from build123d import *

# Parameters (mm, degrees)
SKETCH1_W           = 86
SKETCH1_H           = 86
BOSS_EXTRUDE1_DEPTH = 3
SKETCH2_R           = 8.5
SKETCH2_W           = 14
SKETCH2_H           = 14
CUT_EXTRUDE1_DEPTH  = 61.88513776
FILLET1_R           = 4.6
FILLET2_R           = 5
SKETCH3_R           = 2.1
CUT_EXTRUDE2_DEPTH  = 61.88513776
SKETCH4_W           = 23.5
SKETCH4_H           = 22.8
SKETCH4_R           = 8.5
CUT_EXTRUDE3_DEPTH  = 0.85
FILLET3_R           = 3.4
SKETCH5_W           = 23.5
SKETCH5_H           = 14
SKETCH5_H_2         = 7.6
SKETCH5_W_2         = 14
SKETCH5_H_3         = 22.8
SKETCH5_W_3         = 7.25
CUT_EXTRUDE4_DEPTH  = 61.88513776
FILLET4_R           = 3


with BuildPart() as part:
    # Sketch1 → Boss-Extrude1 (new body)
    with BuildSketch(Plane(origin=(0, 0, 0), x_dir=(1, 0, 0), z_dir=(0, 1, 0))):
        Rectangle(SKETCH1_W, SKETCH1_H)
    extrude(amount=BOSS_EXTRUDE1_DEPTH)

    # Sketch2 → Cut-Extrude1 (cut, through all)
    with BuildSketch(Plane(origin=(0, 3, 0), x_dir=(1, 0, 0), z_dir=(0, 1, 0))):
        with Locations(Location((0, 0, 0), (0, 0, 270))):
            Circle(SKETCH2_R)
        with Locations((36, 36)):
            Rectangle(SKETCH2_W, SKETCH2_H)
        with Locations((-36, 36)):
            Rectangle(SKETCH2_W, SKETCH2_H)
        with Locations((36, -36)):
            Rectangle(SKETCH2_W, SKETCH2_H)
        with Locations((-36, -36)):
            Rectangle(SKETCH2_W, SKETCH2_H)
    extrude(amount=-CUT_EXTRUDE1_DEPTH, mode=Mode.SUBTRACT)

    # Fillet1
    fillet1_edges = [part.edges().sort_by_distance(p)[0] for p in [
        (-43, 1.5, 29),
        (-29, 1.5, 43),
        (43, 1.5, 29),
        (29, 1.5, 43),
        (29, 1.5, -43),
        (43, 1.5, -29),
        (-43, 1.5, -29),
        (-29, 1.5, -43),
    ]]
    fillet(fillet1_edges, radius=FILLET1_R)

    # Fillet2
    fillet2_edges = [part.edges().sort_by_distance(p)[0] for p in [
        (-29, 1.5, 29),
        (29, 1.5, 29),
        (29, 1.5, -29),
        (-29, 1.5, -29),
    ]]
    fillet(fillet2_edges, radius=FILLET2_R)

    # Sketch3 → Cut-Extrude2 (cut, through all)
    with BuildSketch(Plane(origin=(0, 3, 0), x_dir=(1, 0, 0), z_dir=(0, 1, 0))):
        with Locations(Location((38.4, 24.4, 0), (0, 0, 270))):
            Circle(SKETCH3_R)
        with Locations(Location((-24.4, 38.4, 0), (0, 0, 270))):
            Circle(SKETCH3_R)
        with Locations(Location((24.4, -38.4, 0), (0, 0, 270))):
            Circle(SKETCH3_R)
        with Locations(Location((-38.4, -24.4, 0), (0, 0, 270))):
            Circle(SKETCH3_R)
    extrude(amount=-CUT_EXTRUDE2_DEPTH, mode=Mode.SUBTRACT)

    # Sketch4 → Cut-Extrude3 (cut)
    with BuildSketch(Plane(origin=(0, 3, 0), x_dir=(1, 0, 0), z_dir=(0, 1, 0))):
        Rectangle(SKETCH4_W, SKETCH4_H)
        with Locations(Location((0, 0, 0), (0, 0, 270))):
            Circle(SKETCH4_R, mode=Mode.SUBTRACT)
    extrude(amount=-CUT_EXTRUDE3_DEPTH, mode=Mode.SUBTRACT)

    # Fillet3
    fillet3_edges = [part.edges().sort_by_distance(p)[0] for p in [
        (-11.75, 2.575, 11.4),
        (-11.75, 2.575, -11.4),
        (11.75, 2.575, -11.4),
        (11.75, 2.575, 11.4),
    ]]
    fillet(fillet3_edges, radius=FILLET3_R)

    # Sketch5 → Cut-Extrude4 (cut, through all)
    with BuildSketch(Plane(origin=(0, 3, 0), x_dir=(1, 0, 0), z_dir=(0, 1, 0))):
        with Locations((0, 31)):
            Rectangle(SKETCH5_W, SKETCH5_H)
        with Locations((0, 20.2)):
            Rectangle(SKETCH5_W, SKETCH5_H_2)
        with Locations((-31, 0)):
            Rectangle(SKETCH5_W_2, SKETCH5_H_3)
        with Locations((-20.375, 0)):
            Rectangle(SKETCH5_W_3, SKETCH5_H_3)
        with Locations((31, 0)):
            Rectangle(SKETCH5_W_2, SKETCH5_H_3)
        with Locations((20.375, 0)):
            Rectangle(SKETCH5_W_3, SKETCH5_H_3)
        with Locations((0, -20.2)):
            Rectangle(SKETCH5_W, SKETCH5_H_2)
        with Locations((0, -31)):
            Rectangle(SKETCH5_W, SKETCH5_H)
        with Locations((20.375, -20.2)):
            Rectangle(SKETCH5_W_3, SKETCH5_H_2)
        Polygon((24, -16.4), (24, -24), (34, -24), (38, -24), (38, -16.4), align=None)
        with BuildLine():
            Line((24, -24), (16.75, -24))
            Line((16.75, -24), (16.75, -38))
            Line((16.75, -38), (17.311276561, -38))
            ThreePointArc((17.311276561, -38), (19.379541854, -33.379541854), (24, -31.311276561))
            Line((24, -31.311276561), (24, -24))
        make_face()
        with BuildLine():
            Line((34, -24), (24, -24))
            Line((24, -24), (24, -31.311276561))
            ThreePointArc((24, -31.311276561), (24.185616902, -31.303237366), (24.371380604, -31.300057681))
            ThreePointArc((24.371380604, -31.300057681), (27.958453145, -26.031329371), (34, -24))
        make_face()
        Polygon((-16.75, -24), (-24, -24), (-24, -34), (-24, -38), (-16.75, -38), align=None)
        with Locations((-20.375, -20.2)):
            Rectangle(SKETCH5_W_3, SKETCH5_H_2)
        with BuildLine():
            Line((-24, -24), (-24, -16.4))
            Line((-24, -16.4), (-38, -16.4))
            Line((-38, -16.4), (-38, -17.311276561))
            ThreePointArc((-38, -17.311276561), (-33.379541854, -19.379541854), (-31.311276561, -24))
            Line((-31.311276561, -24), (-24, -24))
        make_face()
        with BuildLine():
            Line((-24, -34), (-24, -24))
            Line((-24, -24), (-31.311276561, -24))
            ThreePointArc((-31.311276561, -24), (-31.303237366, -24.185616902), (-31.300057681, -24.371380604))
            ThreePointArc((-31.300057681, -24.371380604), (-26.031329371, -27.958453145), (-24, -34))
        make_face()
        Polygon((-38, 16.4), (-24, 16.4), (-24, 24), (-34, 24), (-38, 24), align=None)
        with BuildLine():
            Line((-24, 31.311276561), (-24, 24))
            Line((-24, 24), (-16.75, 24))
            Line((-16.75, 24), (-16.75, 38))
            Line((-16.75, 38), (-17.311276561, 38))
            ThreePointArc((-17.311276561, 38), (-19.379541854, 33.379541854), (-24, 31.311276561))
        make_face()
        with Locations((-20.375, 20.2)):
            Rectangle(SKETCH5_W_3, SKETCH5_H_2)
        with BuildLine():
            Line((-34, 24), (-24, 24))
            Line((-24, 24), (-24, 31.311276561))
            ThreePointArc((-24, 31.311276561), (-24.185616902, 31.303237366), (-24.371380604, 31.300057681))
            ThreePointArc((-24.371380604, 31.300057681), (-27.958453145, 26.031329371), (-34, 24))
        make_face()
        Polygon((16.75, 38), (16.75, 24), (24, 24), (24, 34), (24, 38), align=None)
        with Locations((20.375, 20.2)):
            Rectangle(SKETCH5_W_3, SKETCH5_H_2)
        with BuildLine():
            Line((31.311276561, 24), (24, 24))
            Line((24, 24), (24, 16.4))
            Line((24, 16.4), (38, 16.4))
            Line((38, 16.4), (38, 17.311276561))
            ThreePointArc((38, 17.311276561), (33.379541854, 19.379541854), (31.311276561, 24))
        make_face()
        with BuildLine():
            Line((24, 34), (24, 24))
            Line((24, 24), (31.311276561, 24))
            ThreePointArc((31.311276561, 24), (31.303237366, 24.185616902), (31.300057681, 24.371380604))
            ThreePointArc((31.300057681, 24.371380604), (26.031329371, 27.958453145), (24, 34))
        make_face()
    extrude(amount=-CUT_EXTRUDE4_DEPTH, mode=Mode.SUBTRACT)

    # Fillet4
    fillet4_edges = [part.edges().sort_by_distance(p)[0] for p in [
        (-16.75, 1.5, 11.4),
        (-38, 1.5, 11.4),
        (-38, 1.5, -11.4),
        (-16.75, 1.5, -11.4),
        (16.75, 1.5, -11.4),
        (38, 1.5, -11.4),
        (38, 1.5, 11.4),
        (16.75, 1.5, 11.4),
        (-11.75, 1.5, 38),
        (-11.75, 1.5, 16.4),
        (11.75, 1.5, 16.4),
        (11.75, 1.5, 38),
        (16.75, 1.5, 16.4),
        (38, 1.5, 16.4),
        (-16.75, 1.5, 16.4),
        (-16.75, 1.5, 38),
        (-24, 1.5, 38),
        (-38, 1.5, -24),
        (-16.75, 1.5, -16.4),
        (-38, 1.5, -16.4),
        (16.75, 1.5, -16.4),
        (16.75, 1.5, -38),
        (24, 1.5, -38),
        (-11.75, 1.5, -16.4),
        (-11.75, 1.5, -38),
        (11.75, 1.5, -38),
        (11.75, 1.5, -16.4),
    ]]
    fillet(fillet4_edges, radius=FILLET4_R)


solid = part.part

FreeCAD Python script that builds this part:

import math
import FreeCAD as App
import Part
import Sketcher

V = App.Vector


def edges_at(feature, points):
    """Names of the edges that pass closest to the given points."""
    edges = feature.Shape.Edges
    near = lambda p: min(range(len(edges)), key=lambda i: edges[i].distToShape(Part.Vertex(*p))[0])
    return sorted({f"Edge{near(p) + 1}" for p in points})


def add_polygon(sketch, points):
    """Adds a closed chain of lines whose ends are joined by coincident constraints."""
    first, n = sketch.GeometryCount, len(points)
    for a, b in zip(points, points[1:] + points[:1]):
        sketch.addGeometry(Part.LineSegment(App.Vector(*a, 0), App.Vector(*b, 0)), False)
    for i in range(n):
        sketch.addConstraint(Sketcher.Constraint("Coincident", first + i, 2, first + (i + 1) % n, 1))

doc = App.newDocument("Part")
params = doc.addObject("Spreadsheet::Sheet", "Params")
for row, (alias, value) in enumerate([
    ("sketch1_width", "86 mm"),
    ("pad1_length", "3 mm"),
    ("sketch2_diameter", "17 mm"),
    ("sketch2_width", "14 mm"),
    ("fillet_radius", "4.6 mm"),
    ("fillet2_radius", "5 mm"),
    ("sketch3_diameter", "4.2 mm"),
    ("sketch4_diameter", "17 mm"),
    ("sketch4_width", "23.5 mm"),
    ("sketch4_height", "22.8 mm"),
    ("pocket3_length", "0.85 mm"),
    ("fillet3_radius", "3.4 mm"),
    ("sketch5_radius", "10 mm"),
    ("sketch5_radius2", "7.1 mm"),
    ("sketch5_width", "4 mm"),
    ("sketch5_width2", "23.5 mm"),
    ("sketch5_height", "21.6 mm"),
    ("fillet4_radius", "3 mm"),
], start=1):
    params.set(f"A{row}", alias)
    params.set(f"B{row}", "=" + value)
    params.setAlias(f"B{row}", alias)

body = doc.addObject("PartDesign::Body", "Body")

# Sketch on XZ plane
sketch1 = body.newObject("Sketcher::SketchObject", "Sketch")
sketch1.AttachmentSupport = (doc.getObject("XZ_Plane"), [""])
sketch1.MapMode = "FlatFace"
add_polygon(sketch1, [(-43, -43), (-43, 43), (43, 43), (43, -43)])  # lines 0-3
sketch1.addConstraint(Sketcher.Constraint("Vertical", 0))
sketch1.addConstraint(Sketcher.Constraint("Horizontal", 1))
sketch1.addConstraint(Sketcher.Constraint("Vertical", 2))
sketch1.addConstraint(Sketcher.Constraint("Horizontal", 3))
sketch1.addConstraint(Sketcher.Constraint("Symmetric", 0, 2, 2, 2, -1, 1))
sketch1.addConstraint(Sketcher.Constraint("Equal", 3, 0))
sketch1.addConstraint(Sketcher.Constraint("DistanceX", 1, 1, 1, 2, 86.0))
sketch1.setExpression("Constraints[10]", "Params.sketch1_width")
pad1 = body.newObject("PartDesign::Pad", "Pad")
pad1.Profile = sketch1
pad1.setExpression("Length", "Params.pad1_length")
pad1.Reversed = True

# Sketch on XZ plane
sketch2 = body.newObject("Sketcher::SketchObject", "Sketch001")
sketch2.AttachmentSupport = (doc.getObject("XZ_Plane"), [""])
sketch2.MapMode = "FlatFace"
sketch2.AttachmentOffset = App.Placement(V(0, 0, -3), App.Rotation())
sketch2.addGeometry(Part.Circle(V(0, 0, 0), V(0, 0, 1), 8), False)  # 0
add_polygon(sketch2, [(29, -43), (29, -29), (43, -29), (43, -43)])  # lines 1-4
add_polygon(sketch2, [(-43, -43), (-43, -29), (-29, -29), (-29, -43)])  # lines 5-8
add_polygon(sketch2, [(29, 29), (29, 43), (43, 43), (43, 29)])  # lines 9-12
add_polygon(sketch2, [(-43, 29), (-43, 43), (-29, 43), (-29, 29)])  # lines 13-16
sketch2.addConstraint(Sketcher.Constraint("Vertical", 1))
sketch2.addConstraint(Sketcher.Constraint("Horizontal", 2))
sketch2.addConstraint(Sketcher.Constraint("Vertical", 3))
sketch2.addConstraint(Sketcher.Constraint("Horizontal", 4))
sketch2.addConstraint(Sketcher.Constraint("Vertical", 5))
sketch2.addConstraint(Sketcher.Constraint("Horizontal", 6))
sketch2.addConstraint(Sketcher.Constraint("Vertical", 7))
sketch2.addConstraint(Sketcher.Constraint("Horizontal", 8))
sketch2.addConstraint(Sketcher.Constraint("Vertical", 9))
sketch2.addConstraint(Sketcher.Constraint("Horizontal", 10))
sketch2.addConstraint(Sketcher.Constraint("Vertical", 11))
sketch2.addConstraint(Sketcher.Constraint("Horizontal", 12))
sketch2.addConstraint(Sketcher.Constraint("Vertical", 13))
sketch2.addConstraint(Sketcher.Constraint("Horizontal", 14))
sketch2.addConstraint(Sketcher.Constraint("Vertical", 15))
sketch2.addConstraint(Sketcher.Constraint("Horizontal", 16))
sketch2.addConstraint(Sketcher.Constraint("Coincident", 0, 3, -1, 1))
sketch2.addConstraint(Sketcher.Constraint("Symmetric", 7, 2, 9, 2, -1, 1))
sketch2.addConstraint(Sketcher.Constraint("Symmetric", 5, 2, 11, 2, -1, 1))
sketch2.addConstraint(Sketcher.Constraint("Symmetric", 3, 2, 13, 2, -1, 1))
sketch2.addConstraint(Sketcher.Constraint("Symmetric", 1, 2, 15, 2, -1, 1))
sketch2.addConstraint(Sketcher.Constraint("Symmetric", 2, 2, 5, 2, -2))
sketch2.addConstraint(Sketcher.Constraint("Symmetric", 4, 2, 7, 2, -2))
sketch2.addConstraint(Sketcher.Constraint("Equal", 16, 1))
sketch2.addConstraint(Sketcher.Constraint("Diameter", 0, 17.0))
sketch2.addConstraint(Sketcher.Constraint("DistanceX", 2, 1, 2, 2, 14.0))
sketch2.addConstraint(Sketcher.Constraint("DistanceX", -1, 1, 1, 2, 29.0))
sketch2.addConstraint(Sketcher.Constraint("DistanceY", 1, 2, -1, 1, 29.0))
sketch2.setExpression("Constraints[40]", "Params.sketch2_diameter")
sketch2.setExpression("Constraints[41]", "Params.sketch2_width")
pocket1 = body.newObject("PartDesign::Pocket", "Pocket")
pocket1.Profile = sketch2
pocket1.Type = "ThroughAll"
pocket1.Reversed = True
doc.recompute()

fillet = body.newObject("PartDesign::Fillet", "Fillet")
fillet.Base = (pocket1, edges_at(pocket1, [
    (-43, 1.5, 29),
    (-29, 1.5, 43),
    (43, 1.5, 29),
    (29, 1.5, 43),
    (29, 1.5, -43),
    (43, 1.5, -29),
    (-43, 1.5, -29),
    (-29, 1.5, -43),
]))
fillet.setExpression("Radius", "Params.fillet_radius")
doc.recompute()

fillet2 = body.newObject("PartDesign::Fillet", "Fillet001")
fillet2.Base = (fillet, edges_at(fillet, [
    (-29, 1.5, 29),
    (29, 1.5, 29),
    (29, 1.5, -29),
    (-29, 1.5, -29),
]))
fillet2.setExpression("Radius", "Params.fillet2_radius")

# Sketch on XZ plane
sketch3 = body.newObject("Sketcher::SketchObject", "Sketch002")
sketch3.AttachmentSupport = (doc.getObject("XZ_Plane"), [""])
sketch3.MapMode = "FlatFace"
sketch3.AttachmentOffset = App.Placement(V(0, 0, -3), App.Rotation())
sketch3.addGeometry(Part.Circle(V(38.4, -24.4, 0), V(0, 0, 1), 2.1), False)
sketch3.addGeometry(Part.Circle(V(-24.4, -38.4, 0), V(0, 0, 1), 2.1), False)
sketch3.addGeometry(Part.Circle(V(24.4, 38.4, 0), V(0, 0, 1), 2.1), False)
sketch3.addGeometry(Part.Circle(V(-38.4, 24.4, 0), V(0, 0, 1), 2.1), False)
sketch3.addConstraint(Sketcher.Constraint("Equal", 0, 1))
sketch3.addConstraint(Sketcher.Constraint("Equal", 1, 2))
sketch3.addConstraint(Sketcher.Constraint("Equal", 2, 3))
sketch3.addConstraint(Sketcher.Constraint("Symmetric", 1, 3, 2, 3, -1, 1))
sketch3.addConstraint(Sketcher.Constraint("Symmetric", 0, 3, 3, 3, -1, 1))
sketch3.addConstraint(Sketcher.Constraint("Diameter", 0, 4.2))
sketch3.addConstraint(Sketcher.Constraint("DistanceY", 1, 3, 0, 3, 14.0))
sketch3.addConstraint(Sketcher.Constraint("DistanceX", 2, 3, 0, 3, 14.0))
sketch3.addConstraint(Sketcher.Constraint("DistanceX", -1, 1, 0, 3, 38.4))
sketch3.addConstraint(Sketcher.Constraint("DistanceY", 0, 3, -1, 1, 24.4))
sketch3.setExpression("Constraints[5]", "Params.sketch3_diameter")
pocket2 = body.newObject("PartDesign::Pocket", "Pocket001")
pocket2.Profile = sketch3
pocket2.Type = "ThroughAll"
pocket2.Reversed = True

# Sketch on XZ plane
sketch4 = body.newObject("Sketcher::SketchObject", "Sketch003")
sketch4.AttachmentSupport = (doc.getObject("XZ_Plane"), [""])
sketch4.MapMode = "FlatFace"
sketch4.AttachmentOffset = App.Placement(V(0, 0, -3), App.Rotation())
add_polygon(sketch4, [(-12, -11), (-12, 11), (12, 11), (12, -11)])  # lines 0-3
sketch4.addGeometry(Part.Circle(V(0, 0, 0), V(0, 0, 1), 8), False)  # 4
sketch4.addConstraint(Sketcher.Constraint("Vertical", 0))
sketch4.addConstraint(Sketcher.Constraint("Horizontal", 1))
sketch4.addConstraint(Sketcher.Constraint("Vertical", 2))
sketch4.addConstraint(Sketcher.Constraint("Horizontal", 3))
sketch4.addConstraint(Sketcher.Constraint("Coincident", 4, 3, -1, 1))
sketch4.addConstraint(Sketcher.Constraint("Symmetric", 0, 2, 2, 2, -1, 1))
sketch4.addConstraint(Sketcher.Constraint("Diameter", 4, 17.0))
sketch4.addConstraint(Sketcher.Constraint("DistanceX", 1, 1, 1, 2, 23.5))
sketch4.addConstraint(Sketcher.Constraint("DistanceY", 0, 1, 0, 2, 22.8))
sketch4.setExpression("Constraints[10]", "Params.sketch4_diameter")
sketch4.setExpression("Constraints[11]", "Params.sketch4_width")
sketch4.setExpression("Constraints[12]", "Params.sketch4_height")
pocket3 = body.newObject("PartDesign::Pocket", "Pocket002")
pocket3.Profile = sketch4
pocket3.setExpression("Length", "Params.pocket3_length")
pocket3.Reversed = True
doc.recompute()

fillet3 = body.newObject("PartDesign::Fillet", "Fillet002")
fillet3.Base = (pocket3, edges_at(pocket3, [
    (-11.75, 2.575, 11.4),
    (-11.75, 2.575, -11.4),
    (11.75, 2.575, -11.4),
    (11.75, 2.575, 11.4),
]))
fillet3.setExpression("Radius", "Params.fillet3_radius")

# Sketch on XZ plane
sketch5 = body.newObject("Sketcher::SketchObject", "Sketch004")
sketch5.AttachmentSupport = (doc.getObject("XZ_Plane"), [""])
sketch5.MapMode = "FlatFace"
sketch5.AttachmentOffset = App.Placement(V(0, 0, -3), App.Rotation())
add_polygon(sketch5, [(-11.75, -38), (-11.75, -16.4), (11.75, -16.4), (11.75, -38)])  # lines 0-3
add_polygon(sketch5, [(-38, -11.4), (-38, 11.4), (-16.75, 11.4), (-16.75, -11.4)])  # lines 4-7
add_polygon(sketch5, [(38, 11.4), (38, -11.4), (16.75, -11.4), (16.75, 11.4)])  # lines 8-11
add_polygon(sketch5, [(-11.75, 16.4), (-11.75, 38), (11.75, 38), (11.75, 16.4)])  # lines 12-15
sketch5.addGeometry(Part.LineSegment(V(16.75, 16.4, 0), V(16.75, 38, 0)), False)  # 16
sketch5.addGeometry(Part.LineSegment(V(16.75, 38, 0), V(17.31, 38, 0)), False)  # 17
sketch5.addGeometry(Part.ArcOfCircle(Part.Circle(V(24.4, 38.4, 0), V(0, 0, 1), 7.1), math.radians(-177), math.radians(-93)), False)  # 18
sketch5.addGeometry(Part.ArcOfCircle(Part.Circle(V(24.4, 38.4, 0), V(0, 0, 1), 7.1), math.radians(-93.23), math.radians(-90.23)), False)  # 19
sketch5.addGeometry(Part.ArcOfCircle(Part.Circle(V(34, 34, 0), V(0, 0, 1), 10), math.radians(-164), math.radians(-90)), False)  # 20
sketch5.addGeometry(Part.LineSegment(V(34, 24, 0), V(38, 24, 0)), False)  # 21
sketch5.addGeometry(Part.LineSegment(V(38, 24, 0), V(38, 16.4, 0)), False)  # 22
sketch5.addGeometry(Part.LineSegment(V(38, 16.4, 0), V(16.75, 16.4, 0)), False)  # 23
sketch5.addGeometry(Part.LineSegment(V(-24, 38, 0), V(-16.75, 38, 0)), False)  # 24
sketch5.addGeometry(Part.LineSegment(V(-16.75, 38, 0), V(-16.75, 16.4, 0)), False)  # 25
sketch5.addGeometry(Part.LineSegment(V(-16.75, 16.4, 0), V(-38, 16.4, 0)), False)  # 26
sketch5.addGeometry(Part.LineSegment(V(-38, 16.4, 0), V(-38, 17.31, 0)), False)  # 27
sketch5.addGeometry(Part.ArcOfCircle(Part.Circle(V(-38.4, 24.4, 0), V(0, 0, 1), 7.1), math.radians(-87), math.radians(-3)), False)  # 28
sketch5.addGeometry(Part.ArcOfCircle(Part.Circle(V(-38.4, 24.4, 0), V(0, 0, 1), 7.1), math.radians(-3.23), math.radians(-0.23)), False)  # 29
sketch5.addGeometry(Part.ArcOfCircle(Part.Circle(V(-34, 34, 0), V(0, 0, 1), 10), math.radians(-74), math.radians(0)), False)  # 30
sketch5.addGeometry(Part.LineSegment(V(-24, 34, 0), V(-24, 38, 0)), False)  # 31
sketch5.addGeometry(Part.LineSegment(V(-38, -16.4, 0), V(-16.75, -16.4, 0)), False)  # 32
sketch5.addGeometry(Part.LineSegment(V(-16.75, -16.4, 0), V(-16.75, -38, 0)), False)  # 33
sketch5.addGeometry(Part.LineSegment(V(-16.75, -38, 0), V(-17.31, -38, 0)), False)  # 34
sketch5.addGeometry(Part.ArcOfCircle(Part.Circle(V(-24.4, -38.4, 0), V(0, 0, 1), 7.1), math.radians(3), math.radians(87)), False)  # 35
sketch5.addGeometry(Part.ArcOfCircle(Part.Circle(V(-24.4, -38.4, 0), V(0, 0, 1), 7.1), math.radians(86.77), math.radians(89.77)), False)  # 36
sketch5.addGeometry(Part.ArcOfCircle(Part.Circle(V(-34, -34, 0), V(0, 0, 1), 10), math.radians(16), math.radians(90)), False)  # 37
sketch5.addGeometry(Part.LineSegment(V(-34, -24, 0), V(-38, -24, 0)), False)  # 38
sketch5.addGeometry(Part.LineSegment(V(-38, -24, 0), V(-38, -16.4, 0)), False)  # 39
sketch5.addGeometry(Part.LineSegment(V(16.75, -38, 0), V(16.75, -16.4, 0)), False)  # 40
sketch5.addGeometry(Part.LineSegment(V(16.75, -16.4, 0), V(38, -16.4, 0)), False)  # 41
sketch5.addGeometry(Part.LineSegment(V(38, -16.4, 0), V(38, -17.31, 0)), False)  # 42
sketch5.addGeometry(Part.ArcOfCircle(Part.Circle(V(38.4, -24.4, 0), V(0, 0, 1), 7.1), math.radians(93), math.radians(177)), False)  # 43
sketch5.addGeometry(Part.ArcOfCircle(Part.Circle(V(38.4, -24.4, 0), V(0, 0, 1), 7.1), math.radians(176.77), math.radians(179.77)), False)  # 44
sketch5.addGeometry(Part.ArcOfCircle(Part.Circle(V(34, -34, 0), V(0, 0, 1), 10), math.radians(106), math.radians(180)), False)  # 45
sketch5.addGeometry(Part.LineSegment(V(24, -34, 0), V(24, -38, 0)), False)  # 46
sketch5.addGeometry(Part.LineSegment(V(24, -38, 0), V(16.75, -38, 0)), False)  # 47
sketch5.addConstraint(Sketcher.Constraint("Coincident", 16, 2, 17, 1))
sketch5.addConstraint(Sketcher.Constraint("Coincident", 17, 2, 18, 1))
sketch5.addConstraint(Sketcher.Constraint("Tangent", 18, 2, 19, 1))
sketch5.addConstraint(Sketcher.Constraint("Coincident", 19, 2, 20, 1))
sketch5.addConstraint(Sketcher.Constraint("Tangent", 20, 2, 21, 1))
sketch5.addConstraint(Sketcher.Constraint("Coincident", 21, 2, 22, 1))
sketch5.addConstraint(Sketcher.Constraint("Coincident", 22, 2, 23, 1))
sketch5.addConstraint(Sketcher.Constraint("Coincident", 23, 2, 16, 1))
sketch5.addConstraint(Sketcher.Constraint("Coincident", 24, 2, 25, 1))
sketch5.addConstraint(Sketcher.Constraint("Coincident", 25, 2, 26, 1))
sketch5.addConstraint(Sketcher.Constraint("Coincident", 26, 2, 27, 1))
sketch5.addConstraint(Sketcher.Constraint("Coincident", 27, 2, 28, 1))
sketch5.addConstraint(Sketcher.Constraint("Tangent", 28, 2, 29, 1))
sketch5.addConstraint(Sketcher.Constraint("Coincident", 29, 2, 30, 1))
sketch5.addConstraint(Sketcher.Constraint("Tangent", 30, 2, 31, 1))
sketch5.addConstraint(Sketcher.Constraint("Coincident", 31, 2, 24, 1))
sketch5.addConstraint(Sketcher.Constraint("Coincident", 32, 2, 33, 1))
sketch5.addConstraint(Sketcher.Constraint("Coincident", 33, 2, 34, 1))
sketch5.addConstraint(Sketcher.Constraint("Coincident", 34, 2, 35, 1))
sketch5.addConstraint(Sketcher.Constraint("Tangent", 35, 2, 36, 1))
sketch5.addConstraint(Sketcher.Constraint("Coincident", 36, 2, 37, 1))
sketch5.addConstraint(Sketcher.Constraint("Tangent", 37, 2, 38, 1))
sketch5.addConstraint(Sketcher.Constraint("Coincident", 38, 2, 39, 1))
sketch5.addConstraint(Sketcher.Constraint("Coincident", 39, 2, 32, 1))
sketch5.addConstraint(Sketcher.Constraint("Coincident", 40, 2, 41, 1))
sketch5.addConstraint(Sketcher.Constraint("Coincident", 41, 2, 42, 1))
sketch5.addConstraint(Sketcher.Constraint("Coincident", 42, 2, 43, 1))
sketch5.addConstraint(Sketcher.Constraint("Tangent", 43, 2, 44, 1))
sketch5.addConstraint(Sketcher.Constraint("Coincident", 44, 2, 45, 1))
sketch5.addConstraint(Sketcher.Constraint("Tangent", 45, 2, 46, 1))
sketch5.addConstraint(Sketcher.Constraint("Coincident", 46, 2, 47, 1))
sketch5.addConstraint(Sketcher.Constraint("Coincident", 47, 2, 40, 1))
sketch5.addConstraint(Sketcher.Constraint("Vertical", 0))
sketch5.addConstraint(Sketcher.Constraint("Horizontal", 1))
sketch5.addConstraint(Sketcher.Constraint("Vertical", 2))
sketch5.addConstraint(Sketcher.Constraint("Horizontal", 3))
sketch5.addConstraint(Sketcher.Constraint("Vertical", 4))
sketch5.addConstraint(Sketcher.Constraint("Horizontal", 5))
sketch5.addConstraint(Sketcher.Constraint("Vertical", 6))
sketch5.addConstraint(Sketcher.Constraint("Horizontal", 7))
sketch5.addConstraint(Sketcher.Constraint("Vertical", 8))
sketch5.addConstraint(Sketcher.Constraint("Horizontal", 9))
sketch5.addConstraint(Sketcher.Constraint("Vertical", 10))
sketch5.addConstraint(Sketcher.Constraint("Horizontal", 11))
sketch5.addConstraint(Sketcher.Constraint("Vertical", 12))
sketch5.addConstraint(Sketcher.Constraint("Horizontal", 13))
sketch5.addConstraint(Sketcher.Constraint("Vertical", 14))
sketch5.addConstraint(Sketcher.Constraint("Horizontal", 15))
sketch5.addConstraint(Sketcher.Constraint("Vertical", 16))
sketch5.addConstraint(Sketcher.Constraint("Horizontal", 17))
sketch5.addConstraint(Sketcher.Constraint("Horizontal", 21))
sketch5.addConstraint(Sketcher.Constraint("Vertical", 22))
sketch5.addConstraint(Sketcher.Constraint("Horizontal", 23))
sketch5.addConstraint(Sketcher.Constraint("Horizontal", 24))
sketch5.addConstraint(Sketcher.Constraint("Vertical", 25))
sketch5.addConstraint(Sketcher.Constraint("Horizontal", 26))
sketch5.addConstraint(Sketcher.Constraint("Vertical", 27))
sketch5.addConstraint(Sketcher.Constraint("Vertical", 31))
sketch5.addConstraint(Sketcher.Constraint("Horizontal", 32))
sketch5.addConstraint(Sketcher.Constraint("Vertical", 33))
sketch5.addConstraint(Sketcher.Constraint("Horizontal", 34))
sketch5.addConstraint(Sketcher.Constraint("Horizontal", 38))
sketch5.addConstraint(Sketcher.Constraint("Vertical", 39))
sketch5.addConstraint(Sketcher.Constraint("Vertical", 40))
sketch5.addConstraint(Sketcher.Constraint("Horizontal", 41))
sketch5.addConstraint(Sketcher.Constraint("Vertical", 42))
sketch5.addConstraint(Sketcher.Constraint("Vertical", 46))
sketch5.addConstraint(Sketcher.Constraint("Horizontal", 47))
sketch5.addConstraint(Sketcher.Constraint("Equal", 18, 19))
sketch5.addConstraint(Sketcher.Constraint("Equal", 19, 28))
sketch5.addConstraint(Sketcher.Constraint("Equal", 28, 29))
sketch5.addConstraint(Sketcher.Constraint("Equal", 20, 30))
sketch5.addConstraint(Sketcher.Constraint("Equal", 29, 35))
sketch5.addConstraint(Sketcher.Constraint("Equal", 35, 36))
sketch5.addConstraint(Sketcher.Constraint("Equal", 30, 37))
sketch5.addConstraint(Sketcher.Constraint("Equal", 36, 43))
sketch5.addConstraint(Sketcher.Constraint("Equal", 43, 44))
sketch5.addConstraint(Sketcher.Constraint("Equal", 37, 45))
sketch5.addConstraint(Sketcher.Constraint("Symmetric", 18, 3, 35, 3, -1, 1))
sketch5.addConstraint(Sketcher.Constraint("Symmetric", 20, 3, 37, 3, -1, 1))
sketch5.addConstraint(Sketcher.Constraint("Symmetric", 28, 3, 43, 3, -1, 1))
sketch5.addConstraint(Sketcher.Constraint("Symmetric", 30, 3, 45, 3, -1, 1))
sketch5.addConstraint(Sketcher.Constraint("Symmetric", 4, 2, 8, 2, -1, 1))
sketch5.addConstraint(Sketcher.Constraint("Symmetric", 6, 2, 10, 2, -1, 1))
sketch5.addConstraint(Sketcher.Constraint("Symmetric", 2, 2, 12, 2, -1, 1))
sketch5.addConstraint(Sketcher.Constraint("Symmetric", 0, 2, 14, 2, -1, 1))
sketch5.addConstraint(Sketcher.Constraint("Symmetric", 23, 2, 32, 2, -1, 1))
sketch5.addConstraint(Sketcher.Constraint("Symmetric", 25, 2, 40, 2, -1, 1))
sketch5.addConstraint(Sketcher.Constraint("Symmetric", 20, 3, 30, 3, -2))
sketch5.addConstraint(Sketcher.Constraint("Symmetric", 16, 2, 24, 2, -2))
sketch5.addConstraint(Sketcher.Constraint("Symmetric", 22, 2, 26, 2, -2))
sketch5.addConstraint(Sketcher.Constraint("Horizontal", 7, 2, 8, 2))
sketch5.addConstraint(Sketcher.Constraint("Horizontal", 13, 2, 16, 2))
sketch5.addConstraint(Sketcher.Constraint("Horizontal", 15, 2, 22, 2))
sketch5.addConstraint(Sketcher.Constraint("Horizontal", 21, 2, 28, 2))
sketch5.addConstraint(Sketcher.Constraint("Horizontal", 3, 2, 33, 2))
sketch5.addConstraint(Sketcher.Constraint("Horizontal", 38, 2, 43, 2))
sketch5.addConstraint(Sketcher.Constraint("Horizontal", 34, 2, 46, 2))
sketch5.addConstraint(Sketcher.Constraint("Vertical", 3, 2, 12, 2))
sketch5.addConstraint(Sketcher.Constraint("Vertical", 10, 2, 16, 2))
sketch5.addConstraint(Sketcher.Constraint("Vertical", 11, 2, 21, 2))
sketch5.addConstraint(Sketcher.Constraint("Vertical", 31, 2, 35, 2))
sketch5.addConstraint(Sketcher.Constraint("Vertical", 27, 2, 38, 2))
sketch5.addConstraint(Sketcher.Constraint("Vertical", 22, 2, 41, 2))
sketch5.addConstraint(Sketcher.Constraint("Vertical", 18, 2, 45, 2))
sketch5.addConstraint(Sketcher.Constraint("Equal", 38, 31))
sketch5.addConstraint(Sketcher.Constraint("Radius", 20, 10.0))
sketch5.addConstraint(Sketcher.Constraint("Radius", 18, 7.1))
sketch5.addConstraint(Sketcher.Constraint("DistanceX", 21, 1, 21, 2, 4.0))
sketch5.addConstraint(Sketcher.Constraint("DistanceX", 1, 1, 1, 2, 23.5))
sketch5.addConstraint(Sketcher.Constraint("DistanceY", 0, 1, 0, 2, 21.6))
sketch5.addConstraint(Sketcher.Constraint("DistanceY", 4, 1, 4, 2, 22.8))
sketch5.addConstraint(Sketcher.Constraint("DistanceX", -1, 1, 20, 3, 34.0))
sketch5.addConstraint(Sketcher.Constraint("DistanceY", -1, 1, 20, 3, 34.0))
sketch5.addConstraint(Sketcher.Constraint("DistanceY", 28, 3, 18, 3, 14.0))
sketch5.addConstraint(Sketcher.Constraint("DistanceX", 28, 3, 35, 3, 14.0))
sketch5.addConstraint(Sketcher.Constraint("DistanceY", 35, 3, 0, 2, 22.0))
sketch5.addConstraint(Sketcher.Constraint("DistanceX", 5, 2, 0, 2, 5.0))
sketch5.addConstraint(Sketcher.Constraint("DistanceX", -1, 1, 18, 3, 24.4))
sketch5.setExpression("Constraints[122]", "Params.sketch5_radius")
sketch5.setExpression("Constraints[123]", "Params.sketch5_radius2")
sketch5.setExpression("Constraints[124]", "Params.sketch5_width")
sketch5.setExpression("Constraints[125]", "Params.sketch5_width2")
sketch5.setExpression("Constraints[126]", "Params.sketch5_height")
pocket4 = body.newObject("PartDesign::Pocket", "Pocket003")
pocket4.Profile = sketch5
pocket4.Type = "ThroughAll"
pocket4.Reversed = True
doc.recompute()

fillet4 = body.newObject("PartDesign::Fillet", "Fillet003")
fillet4.Base = (pocket4, edges_at(pocket4, [
    (-16.75, 1.5, 11.4),
    (-38, 1.5, 11.4),
    (-38, 1.5, -11.4),
    (-16.75, 1.5, -11.4),
    (16.75, 1.5, -11.4),
    (38, 1.5, -11.4),
    (38, 1.5, 11.4),
    (16.75, 1.5, 11.4),
    (-11.75, 1.5, 38),
    (-11.75, 1.5, 16.4),
    (11.75, 1.5, 16.4),
    (11.75, 1.5, 38),
    (16.75, 1.5, 16.4),
    (38, 1.5, 16.4),
    (-16.75, 1.5, 16.4),
    (-16.75, 1.5, 38),
    (-24, 1.5, 38),
    (-38, 1.5, -24),
    (-16.75, 1.5, -16.4),
    (-38, 1.5, -16.4),
    (16.75, 1.5, -16.4),
    (16.75, 1.5, -38),
    (24, 1.5, -38),
    (-11.75, 1.5, -16.4),
    (-11.75, 1.5, -38),
    (11.75, 1.5, -38),
    (11.75, 1.5, -16.4),
]))
fillet4.setExpression("Radius", "Params.fillet4_radius")

doc.recompute()
